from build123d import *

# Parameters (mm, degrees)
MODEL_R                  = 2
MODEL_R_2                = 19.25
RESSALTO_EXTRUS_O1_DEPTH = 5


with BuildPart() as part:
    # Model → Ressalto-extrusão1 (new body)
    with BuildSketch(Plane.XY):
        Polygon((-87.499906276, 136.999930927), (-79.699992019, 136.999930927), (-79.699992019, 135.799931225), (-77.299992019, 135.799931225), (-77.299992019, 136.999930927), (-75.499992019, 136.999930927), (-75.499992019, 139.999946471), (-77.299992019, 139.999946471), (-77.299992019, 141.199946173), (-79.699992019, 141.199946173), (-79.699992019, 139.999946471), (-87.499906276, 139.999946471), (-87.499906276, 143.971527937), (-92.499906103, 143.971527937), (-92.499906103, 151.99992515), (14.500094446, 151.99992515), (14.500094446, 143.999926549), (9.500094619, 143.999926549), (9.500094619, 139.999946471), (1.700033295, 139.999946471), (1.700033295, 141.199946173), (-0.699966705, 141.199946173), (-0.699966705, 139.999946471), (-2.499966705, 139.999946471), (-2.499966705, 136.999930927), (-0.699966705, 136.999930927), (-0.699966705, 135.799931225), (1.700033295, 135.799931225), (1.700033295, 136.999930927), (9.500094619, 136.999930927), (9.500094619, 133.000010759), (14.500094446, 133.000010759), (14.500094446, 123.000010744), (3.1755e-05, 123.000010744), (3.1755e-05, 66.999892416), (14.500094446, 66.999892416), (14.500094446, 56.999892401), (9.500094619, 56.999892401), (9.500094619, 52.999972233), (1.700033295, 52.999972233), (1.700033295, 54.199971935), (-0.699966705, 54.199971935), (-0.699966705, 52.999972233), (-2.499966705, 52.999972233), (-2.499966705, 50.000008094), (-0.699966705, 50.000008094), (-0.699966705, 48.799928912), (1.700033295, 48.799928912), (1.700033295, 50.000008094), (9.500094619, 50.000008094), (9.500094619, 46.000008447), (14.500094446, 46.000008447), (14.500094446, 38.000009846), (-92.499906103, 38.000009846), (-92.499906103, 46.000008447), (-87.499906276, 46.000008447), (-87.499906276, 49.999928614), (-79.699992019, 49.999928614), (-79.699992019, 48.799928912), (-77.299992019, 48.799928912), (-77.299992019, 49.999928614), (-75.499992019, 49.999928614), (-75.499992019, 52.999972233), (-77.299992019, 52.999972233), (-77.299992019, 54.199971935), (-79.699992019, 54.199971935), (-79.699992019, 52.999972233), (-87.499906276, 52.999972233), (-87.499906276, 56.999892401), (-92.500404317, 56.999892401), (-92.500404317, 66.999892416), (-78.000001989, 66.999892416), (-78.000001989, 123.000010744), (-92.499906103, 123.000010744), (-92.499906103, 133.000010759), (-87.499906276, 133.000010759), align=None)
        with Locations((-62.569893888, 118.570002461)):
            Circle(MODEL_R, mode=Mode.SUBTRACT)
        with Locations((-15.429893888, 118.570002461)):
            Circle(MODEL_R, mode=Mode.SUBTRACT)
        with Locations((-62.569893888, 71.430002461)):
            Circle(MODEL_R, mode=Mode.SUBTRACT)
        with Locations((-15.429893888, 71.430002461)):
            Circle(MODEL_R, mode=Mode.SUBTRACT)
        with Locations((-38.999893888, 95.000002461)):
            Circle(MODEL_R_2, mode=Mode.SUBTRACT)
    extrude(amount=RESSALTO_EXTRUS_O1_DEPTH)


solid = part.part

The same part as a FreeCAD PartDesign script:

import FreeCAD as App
import Part
import Sketcher
from FreeCAD import Vector
Q = App.Units.Quantity

doc = App.newDocument("Part")
body = doc.addObject("PartDesign::Body", "Body")

sketch1 = body.newObject("Sketcher::SketchObject", "Sketch")
sketch1.AttachmentSupport = (doc.getObject("XY_Plane"), [""])
sketch1.MapMode = "FlatFace"
sketch1.addGeometry([
    Part.LineSegment(Vector(-79.7, 137, 0), Vector(-87.5, 137, 0)),
    Part.LineSegment(Vector(-87.5, 137, 0), Vector(-87.5, 133, 0)),
    Part.LineSegment(Vector(-87.5, 133, 0), Vector(-92.5, 133, 0)),
    Part.LineSegment(Vector(-92.5, 133, 0), Vector(-92.5, 123, 0)),
    Part.LineSegment(Vector(-92.5, 123, 0), Vector(-78, 123, 0)),
    Part.LineSegment(Vector(-78, 123, 0), Vector(-78, 67, 0)),
    Part.LineSegment(Vector(-78, 67, 0), Vector(-92.5, 67, 0)),
    Part.LineSegment(Vector(-92.5, 67, 0), Vector(-92.5, 57, 0)),
    Part.LineSegment(Vector(-92.5, 57, 0), Vector(-87.5, 57, 0)),
    Part.LineSegment(Vector(-87.5, 57, 0), Vector(-87.5, 53, 0)),
    Part.LineSegment(Vector(-87.5, 53, 0), Vector(-79.7, 53, 0)),
    Part.LineSegment(Vector(-79.7, 53, 0), Vector(-79.7, 54.2, 0)),
    Part.LineSegment(Vector(-79.7, 54.2, 0), Vector(-77.3, 54.2, 0)),
    Part.LineSegment(Vector(-77.3, 54.2, 0), Vector(-77.3, 53, 0)),
    Part.LineSegment(Vector(-77.3, 53, 0), Vector(-75.5, 53, 0)),
    Part.LineSegment(Vector(-75.5, 53, 0), Vector(-75.5, 50, 0)),
    Part.LineSegment(Vector(-75.5, 50, 0), Vector(-77.3, 50, 0)),
    Part.LineSegment(Vector(-77.3, 50, 0), Vector(-77.3, 48.8, 0)),
    Part.LineSegment(Vector(-77.3, 48.8, 0), Vector(-79.7, 48.8, 0)),
    Part.LineSegment(Vector(-79.7, 48.8, 0), Vector(-79.7, 50, 0)),
    Part.LineSegment(Vector(-79.7, 50, 0), Vector(-87.5, 50, 0)),
    Part.LineSegment(Vector(-87.5, 50, 0), Vector(-87.5, 46, 0)),
    Part.LineSegment(Vector(-87.5, 46, 0), Vector(-92.5, 46, 0)),
    Part.LineSegment(Vector(-92.5, 46, 0), Vector(-92.5, 38, 0)),
    Part.LineSegment(Vector(-92.5, 38, 0), Vector(14.5, 38, 0)),
    Part.LineSegment(Vector(14.5, 38, 0), Vector(14.5, 46, 0)),
    Part.LineSegment(Vector(14.5, 46, 0), Vector(9.5, 46, 0)),
    Part.LineSegment(Vector(9.5, 46, 0), Vector(9.5, 50, 0)),
    Part.LineSegment(Vector(9.5, 50, 0), Vector(1.7, 50, 0)),
    Part.LineSegment(Vector(1.7, 50, 0), Vector(1.7, 48.8, 0)),
    Part.LineSegment(Vector(1.7, 48.8, 0), Vector(-0.7, 48.8, 0)),
    Part.LineSegment(Vector(-0.7, 48.8, 0), Vector(-0.7, 50, 0)),
    Part.LineSegment(Vector(-0.7, 50, 0), Vector(-2.5, 50, 0)),
    Part.LineSegment(Vector(-2.5, 50, 0), Vector(-2.5, 53, 0)),
    Part.LineSegment(Vector(-2.5, 53, 0), Vector(-0.7, 53, 0)),
    Part.LineSegment(Vector(-0.7, 53, 0), Vector(-0.7, 54.2, 0)),
    Part.LineSegment(Vector(-0.7, 54.2, 0), Vector(1.7, 54.2, 0)),
    Part.LineSegment(Vector(1.7, 54.2, 0), Vector(1.7, 53, 0)),
    Part.LineSegment(Vector(1.7, 53, 0), Vector(9.5, 53, 0)),
    Part.LineSegment(Vector(9.5, 53, 0), Vector(9.5, 57, 0)),
    Part.LineSegment(Vector(9.5, 57, 0), Vector(14.5, 57, 0)),
    Part.LineSegment(Vector(14.5, 57, 0), Vector(14.5, 67, 0)),
    Part.LineSegment(Vector(14.5, 67, 0), Vector(0, 67, 0)),
    Part.LineSegment(Vector(0, 67, 0), Vector(0, 123, 0)),
    Part.LineSegment(Vector(0, 123, 0), Vector(14.5, 123, 0)),
    Part.LineSegment(Vector(14.5, 123, 0), Vector(14.5, 133, 0)),
    Part.LineSegment(Vector(14.5, 133, 0), Vector(9.5, 133, 0)),
    Part.LineSegment(Vector(9.5, 133, 0), Vector(9.5, 137, 0)),
    Part.LineSegment(Vector(9.5, 137, 0), Vector(1.7, 137, 0)),
    Part.LineSegment(Vector(1.7, 137, 0), Vector(1.7, 135.8, 0)),
    Part.LineSegment(Vector(1.7, 135.8, 0), Vector(-0.7, 135.8, 0)),
    Part.LineSegment(Vector(-0.7, 135.8, 0), Vector(-0.7, 137, 0)),
    Part.LineSegment(Vector(-0.7, 137, 0), Vector(-2.5, 137, 0)),
    Part.LineSegment(Vector(-2.5, 137, 0), Vector(-2.5, 140, 0)),
    Part.LineSegment(Vector(-2.5, 140, 0), Vector(-0.7, 140, 0)),
    Part.LineSegment(Vector(-0.7, 140, 0), Vector(-0.7, 141.2, 0)),
    Part.LineSegment(Vector(-0.7, 141.2, 0), Vector(1.7, 141.2, 0)),
    Part.LineSegment(Vector(1.7, 141.2, 0), Vector(1.7, 140, 0)),
    Part.LineSegment(Vector(1.7, 140, 0), Vector(9.5, 140, 0)),
    Part.LineSegment(Vector(9.5, 140, 0), Vector(9.5, 144, 0)),
    Part.LineSegment(Vector(9.5, 144, 0), Vector(14.5, 144, 0)),
    Part.LineSegment(Vector(14.5, 144, 0), Vector(14.5, 152, 0)),
    Part.LineSegment(Vector(14.5, 152, 0), Vector(-92.5, 152, 0)),
    Part.LineSegment(Vector(-92.5, 152, 0), Vector(-92.5, 144, 0)),
    Part.LineSegment(Vector(-92.5, 144, 0), Vector(-87.5, 144, 0)),
    Part.LineSegment(Vector(-87.5, 144, 0), Vector(-87.5, 140, 0)),
    Part.LineSegment(Vector(-87.5, 140, 0), Vector(-79.7, 140, 0)),
    Part.LineSegment(Vector(-79.7, 140, 0), Vector(-79.7, 141.2, 0)),
    Part.LineSegment(Vector(-79.7, 141.2, 0), Vector(-77.3, 141.2, 0)),
    Part.LineSegment(Vector(-77.3, 141.2, 0), Vector(-77.3, 140, 0)),
    Part.LineSegment(Vector(-77.3, 140, 0), Vector(-75.5, 140, 0)),
    Part.LineSegment(Vector(-75.5, 140, 0), Vector(-75.5, 137, 0)),
    Part.LineSegment(Vector(-75.5, 137, 0), Vector(-77.3, 137, 0)),
    Part.LineSegment(Vector(-77.3, 137, 0), Vector(-77.3, 135.8, 0)),
    Part.LineSegment(Vector(-77.3, 135.8, 0), Vector(-79.7, 135.8, 0)),
    Part.LineSegment(Vector(-79.7, 135.8, 0), Vector(-79.7, 137, 0)),
    Part.Circle(Vector(-15.4, 71.4, 0), Vector(0, 0, 1), 2),
    Part.Circle(Vector(-62.6, 71.4, 0), Vector(0, 0, 1), 2),
    Part.Circle(Vector(-39, 95, 0), Vector(0, 0, 1), 19.2),
    Part.Circle(Vector(-15.4, 118.6, 0), Vector(0, 0, 1), 2),
    Part.Circle(Vector(-62.6, 118.6, 0), Vector(0, 0, 1), 2),
], False)
sketch1.addConstraint([
    Sketcher.Constraint("Coincident", 0, 2, 1, 1),
    Sketcher.Constraint("Coincident", 1, 2, 2, 1),
    Sketcher.Constraint("Coincident", 2, 2, 3, 1),
    Sketcher.Constraint("Coincident", 3, 2, 4, 1),
    Sketcher.Constraint("Coincident", 4, 2, 5, 1),
    Sketcher.Constraint("Coincident", 5, 2, 6, 1),
    Sketcher.Constraint("Coincident", 6, 2, 7, 1),
    Sketcher.Constraint("Coincident", 7, 2, 8, 1),
    Sketcher.Constraint("Coincident", 8, 2, 9, 1),
    Sketcher.Constraint("Coincident", 9, 2, 10, 1),
    Sketcher.Constraint("Coincident", 10, 2, 11, 1),
    Sketcher.Constraint("Coincident", 11, 2, 12, 1),
    Sketcher.Constraint("Coincident", 12, 2, 13, 1),
    Sketcher.Constraint("Coincident", 13, 2, 14, 1),
    Sketcher.Constraint("Coincident", 14, 2, 15, 1),
    Sketcher.Constraint("Coincident", 15, 2, 16, 1),
    Sketcher.Constraint("Coincident", 16, 2, 17, 1),
    Sketcher.Constraint("Coincident", 17, 2, 18, 1),
    Sketcher.Constraint("Coincident", 18, 2, 19, 1),
    Sketcher.Constraint("Coincident", 19, 2, 20, 1),
    Sketcher.Constraint("Coincident", 20, 2, 21, 1),
    Sketcher.Constraint("Coincident", 21, 2, 22, 1),
    Sketcher.Constraint("Coincident", 22, 2, 23, 1),
    Sketcher.Constraint("Coincident", 23, 2, 24, 1),
    Sketcher.Constraint("Coincident", 24, 2, 25, 1),
    Sketcher.Constraint("Coincident", 25, 2, 26, 1),
    Sketcher.Constraint("Coincident", 26, 2, 27, 1),
    Sketcher.Constraint("Coincident", 27, 2, 28, 1),
    Sketcher.Constraint("Coincident", 28, 2, 29, 1),
    Sketcher.Constraint("Coincident", 29, 2, 30, 1),
    Sketcher.Constraint("Coincident", 30, 2, 31, 1),
    Sketcher.Constraint("Coincident", 31, 2, 32, 1),
    Sketcher.Constraint("Coincident", 32, 2, 33, 1),
    Sketcher.Constraint("Coincident", 33, 2, 34, 1),
    Sketcher.Constraint("Coincident", 34, 2, 35, 1),
    Sketcher.Constraint("Coincident", 35, 2, 36, 1),
    Sketcher.Constraint("Coincident", 36, 2, 37, 1),
    Sketcher.Constraint("Coincident", 37, 2, 38, 1),
    Sketcher.Constraint("Coincident", 38, 2, 39, 1),
    Sketcher.Constraint("Coincident", 39, 2, 40, 1),
    Sketcher.Constraint("Coincident", 40, 2, 41, 1),
    Sketcher.Constraint("Coincident", 41, 2, 42, 1),
    Sketcher.Constraint("Coincident", 42, 2, 43, 1),
    Sketcher.Constraint("Coincident", 43, 2, 44, 1),
    Sketcher.Constraint("Coincident", 44, 2, 45, 1),
    Sketcher.Constraint("Coincident", 45, 2, 46, 1),
    Sketcher.Constraint("Coincident", 46, 2, 47, 1),
    Sketcher.Constraint("Coincident", 47, 2, 48, 1),
    Sketcher.Constraint("Coincident", 48, 2, 49, 1),
    Sketcher.Constraint("Coincident", 49, 2, 50, 1),
    Sketcher.Constraint("Coincident", 50, 2, 51, 1),
    Sketcher.Constraint("Coincident", 51, 2, 52, 1),
    Sketcher.Constraint("Coincident", 52, 2, 53, 1),
    Sketcher.Constraint("Coincident", 53, 2, 54, 1),
    Sketcher.Constraint("Coincident", 54, 2, 55, 1),
    Sketcher.Constraint("Coincident", 55, 2, 56, 1),
    Sketcher.Constraint("Coincident", 56, 2, 57, 1),
    Sketcher.Constraint("Coincident", 57, 2, 58, 1),
    Sketcher.Constraint("Coincident", 58, 2, 59, 1),
    Sketcher.Constraint("Coincident", 59, 2, 60, 1),
    Sketcher.Constraint("Coincident", 60, 2, 61, 1),
    Sketcher.Constraint("Coincident", 61, 2, 62, 1),
    Sketcher.Constraint("Coincident", 62, 2, 63, 1),
    Sketcher.Constraint("Coincident", 63, 2, 64, 1),
    Sketcher.Constraint("Coincident", 64, 2, 65, 1),
    Sketcher.Constraint("Coincident", 65, 2, 66, 1),
    Sketcher.Constraint("Coincident", 66, 2, 67, 1),
    Sketcher.Constraint("Coincident", 67, 2, 68, 1),
    Sketcher.Constraint("Coincident", 68, 2, 69, 1),
    Sketcher.Constraint("Coincident", 69, 2, 70, 1),
    Sketcher.Constraint("Coincident", 70, 2, 71, 1),
    Sketcher.Constraint("Coincident", 71, 2, 72, 1),
    Sketcher.Constraint("Coincident", 72, 2, 73, 1),
    Sketcher.Constraint("Coincident", 73, 2, 74, 1),
    Sketcher.Constraint("Coincident", 74, 2, 75, 1),
    Sketcher.Constraint("Coincident", 75, 2, 0, 1),
    Sketcher.Constraint("Horizontal", 0),
    Sketcher.Constraint("Vertical", 1),
    Sketcher.Constraint("Horizontal", 2),
    Sketcher.Constraint("Vertical", 3),
    Sketcher.Constraint("Horizontal", 4),
    Sketcher.Constraint("Vertical", 5),
    Sketcher.Constraint("Horizontal", 6),
    Sketcher.Constraint("Vertical", 7),
    Sketcher.Constraint("Horizontal", 8),
    Sketcher.Constraint("Vertical", 9),
    Sketcher.Constraint("Horizontal", 10),
    Sketcher.Constraint("Vertical", 11),
    Sketcher.Constraint("Horizontal", 12),
    Sketcher.Constraint("Vertical", 13),
    Sketcher.Constraint("Horizontal", 14),
    Sketcher.Constraint("Vertical", 15),
    Sketcher.Constraint("Horizontal", 16),
    Sketcher.Constraint("Vertical", 17),
    Sketcher.Constraint("Horizontal", 18),
    Sketcher.Constraint("Vertical", 19),
    Sketcher.Constraint("Horizontal", 20),
    Sketcher.Constraint("Vertical", 21),
    Sketcher.Constraint("Horizontal", 22),
    Sketcher.Constraint("Vertical", 23),
    Sketcher.Constraint("Horizontal", 24),
    Sketcher.Constraint("Vertical", 25),
    Sketcher.Constraint("Horizontal", 26),
    Sketcher.Constraint("Vertical", 27),
    Sketcher.Constraint("Horizontal", 28),
    Sketcher.Constraint("Vertical", 29),
    Sketcher.Constraint("Horizontal", 30),
    Sketcher.Constraint("Vertical", 31),
    Sketcher.Constraint("Horizontal", 32),
    Sketcher.Constraint("Vertical", 33),
    Sketcher.Constraint("Horizontal", 34),
    Sketcher.Constraint("Vertical", 35),
    Sketcher.Constraint("Horizontal", 36),
    Sketcher.Constraint("Vertical", 37),
    Sketcher.Constraint("Horizontal", 38),
    Sketcher.Constraint("Vertical", 39),
    Sketcher.Constraint("Horizontal", 40),
    Sketcher.Constraint("Vertical", 41),
    Sketcher.Constraint("Horizontal", 42),
    Sketcher.Constraint("Vertical", 43),
    Sketcher.Constraint("Horizontal", 44),
    Sketcher.Constraint("Vertical", 45),
    Sketcher.Constraint("Horizontal", 46),
    Sketcher.Constraint("Vertical", 47),
    Sketcher.Constraint("Horizontal", 48),
    Sketcher.Constraint("Vertical", 49),
    Sketcher.Constraint("Horizontal", 50),
    Sketcher.Constraint("Vertical", 51),
    Sketcher.Constraint("Horizontal", 52),
    Sketcher.Constraint("Vertical", 53),
    Sketcher.Constraint("Horizontal", 54),
    Sketcher.Constraint("Vertical", 55),
    Sketcher.Constraint("Horizontal", 56),
    Sketcher.Constraint("Vertical", 57),
    Sketcher.Constraint("Horizontal", 58),
    Sketcher.Constraint("Vertical", 59),
    Sketcher.Constraint("Horizontal", 60),
    Sketcher.Constraint("Vertical", 61),
    Sketcher.Constraint("Horizontal", 62),
    Sketcher.Constraint("Vertical", 63),
    Sketcher.Constraint("Horizontal", 64),
    Sketcher.Constraint("Vertical", 65),
    Sketcher.Constraint("Horizontal", 66),
    Sketcher.Constraint("Vertical", 67),
    Sketcher.Constraint("Horizontal", 68),
    Sketcher.Constraint("Vertical", 69),
    Sketcher.Constraint("Horizontal", 70),
    Sketcher.Constraint("Vertical", 71),
    Sketcher.Constraint("Horizontal", 72),
    Sketcher.Constraint("Vertical", 73),
    Sketcher.Constraint("Horizontal", 74),
    Sketcher.Constraint("Vertical", 75),
    Sketcher.Constraint("Equal", 76, 77),
    Sketcher.Constraint("Equal", 77, 79),
    Sketcher.Constraint("Equal", 79, 80),
    Sketcher.Constraint("Horizontal", 76, 3, 77, 3),
    Sketcher.Constraint("Horizontal", 79, 3, 80, 3),
    Sketcher.Constraint("Horizontal", 10, 2, 13, 2),
    Sketcher.Constraint("Horizontal", 16, 2, 19, 2),
    Sketcher.Constraint("Horizontal", 22, 2, 25, 2),
    Sketcher.Constraint("Horizontal", 18, 2, 29, 2),
    Sketcher.Constraint("Horizontal", 28, 2, 31, 2),
    Sketcher.Constraint("Horizontal", 14, 2, 33, 2),
    Sketcher.Constraint("Horizontal", 12, 2, 35, 2),
    Sketcher.Constraint("Horizontal", 34, 2, 37, 2),
    Sketcher.Constraint("Horizontal", 8, 2, 39, 2),
    Sketcher.Constraint("Horizontal", 6, 2, 41, 2),
    Sketcher.Constraint("Horizontal", 4, 2, 43, 2),
    Sketcher.Constraint("Horizontal", 2, 2, 45, 2),
    Sketcher.Constraint("Horizontal", 0, 2, 47, 2),
    Sketcher.Constraint("Horizontal", 48, 2, 51, 2),
    Sketcher.Constraint("Horizontal", 54, 2, 57, 2),
    Sketcher.Constraint("Horizontal", 58, 2, 65, 2),
    Sketcher.Constraint("Horizontal", 56, 2, 67, 2),
    Sketcher.Constraint("Horizontal", 66, 2, 69, 2),
    Sketcher.Constraint("Horizontal", 52, 2, 71, 2),
    Sketcher.Constraint("Horizontal", 50, 2, 73, 2),
    Sketcher.Constraint("Vertical", 76, 3, 79, 3),
    Sketcher.Constraint("Vertical", 77, 3, 80, 3),
    Sketcher.Constraint("Vertical", 1, 2, 8, 2),
    Sketcher.Constraint("Vertical", 13, 2, 16, 2),
    Sketcher.Constraint("Vertical", 11, 2, 18, 2),
    Sketcher.Constraint("Vertical", 9, 2, 20, 2),
    Sketcher.Constraint("Vertical", 3, 2, 22, 2),
    Sketcher.Constraint("Vertical", 31, 2, 34, 2),
    Sketcher.Constraint("Vertical", 29, 2, 36, 2),
    Sketcher.Constraint("Vertical", 27, 2, 38, 2),
    Sketcher.Constraint("Vertical", 25, 2, 40, 2),
    Sketcher.Constraint("Vertical", 41, 2, 44, 2),
    Sketcher.Constraint("Vertical", 39, 2, 46, 2),
    Sketcher.Constraint("Vertical", 37, 2, 48, 2),
    Sketcher.Constraint("Vertical", 35, 2, 50, 2),
    Sketcher.Constraint("Vertical", 33, 2, 52, 2),
    Sketcher.Constraint("Vertical", 51, 2, 54, 2),
    Sketcher.Constraint("Vertical", 49, 2, 56, 2),
    Sketcher.Constraint("Vertical", 47, 2, 58, 2),
    Sketcher.Constraint("Vertical", 45, 2, 60, 2),
    Sketcher.Constraint("Vertical", 23, 2, 62, 2),
    Sketcher.Constraint("Vertical", 21, 2, 64, 2),
    Sketcher.Constraint("Vertical", 19, 2, 66, 2),
    Sketcher.Constraint("Vertical", 17, 2, 68, 2),
    Sketcher.Constraint("Vertical", 15, 2, 70, 2),
    Sketcher.Constraint("Vertical", 69, 2, 72, 2),
    Sketcher.Constraint("Vertical", 67, 2, 74, 2),
    Sketcher.Constraint("Equal", 22, 26),
    Sketcher.Constraint("Equal", 18, 30),
    Sketcher.Constraint("Equal", 16, 32),
    Sketcher.Constraint("Equal", 3, 7),
    Sketcher.Constraint("Equal", 1, 9),
    Sketcher.Constraint("Equal", 13, 17),
    Sketcher.Constraint("Equal", 9, 21),
    Sketcher.Constraint("Equal", 37, 49),
    Sketcher.Constraint("Equal", 51, 55),
    Sketcher.Constraint("Equal", 25, 61),
    Sketcher.Constraint("Diameter", 76, Q("4 mm")),
    Sketcher.Constraint("Diameter", 78, Q("38.5 mm")),
    Sketcher.Constraint("DistanceX", 2, 2, 2, 1, Q("5 mm")),
    Sketcher.Constraint("DistanceX", 24, 1, 24, 2, Q("107.000001 mm")),
    Sketcher.Constraint("DistanceY", 3, 2, 3, 1, Q("10 mm")),
    Sketcher.Constraint("DistanceY", 23, 2, 23, 1, Q("7.999999 mm")),
    Sketcher.Constraint("DistanceY", 27, 1, 27, 2, Q("4 mm")),
    Sketcher.Constraint("DistanceX", 12, 1, 12, 2, Q("2.4 mm")),
    Sketcher.Constraint("DistanceX", 14, 1, 14, 2, Q("1.8 mm")),
    Sketcher.Constraint("DistanceY", 11, 1, 11, 2, Q("1.2 mm")),
    Sketcher.Constraint("DistanceX", 4, 2, -1, 1, Q("78.000002 mm")),
    Sketcher.Constraint("DistanceX", 8, 1, 8, 2, Q("5.000498 mm")),
    Sketcher.Constraint("DistanceX", 28, 2, 28, 1, Q("7.800061 mm")),
    Sketcher.Constraint("DistanceY", 1, 2, 1, 1, Q("3.99992 mm")),
    Sketcher.Constraint("DistanceY", 5, 2, 5, 1, Q("56.000118 mm")),
    Sketcher.Constraint("DistanceY", 59, 1, 59, 2, Q("3.99998 mm")),
    Sketcher.Constraint("DistanceY", 65, 2, 65, 1, Q("3.971581 mm")),
    Sketcher.Constraint("DistanceX", 0, 2, 0, 1, Q("7.799914 mm")),
    Sketcher.Constraint("DistanceX", 4, 1, 4, 2, Q("14.499904 mm")),
    Sketcher.Constraint("DistanceX", 42, 2, 42, 1, Q("14.500063 mm")),
    Sketcher.Constraint("DistanceY", 15, 2, 15, 1, Q("3.000044 mm")),
    Sketcher.Constraint("DistanceY", 53, 1, 53, 2, Q("3.000016 mm")),
    Sketcher.Constraint("DistanceY", -1, 1, 0, 2, Q("136.999931 mm")),
    Sketcher.Constraint("DistanceX", 76, 3, -1, 1, Q("15.429894 mm")),
    Sketcher.Constraint("DistanceY", -1, 1, 76, 3, Q("71.430002 mm")),
    Sketcher.Constraint("DistanceX", 77, 3, -1, 1, Q("62.569894 mm")),
    Sketcher.Constraint("DistanceX", 78, 3, -1, 1, Q("38.999894 mm")),
    Sketcher.Constraint("DistanceY", -1, 1, 78, 3, Q("95.000002 mm")),
    Sketcher.Constraint("DistanceY", -1, 1, 79, 3, Q("118.570002 mm")),
])
pad1 = body.newObject("PartDesign::Pad", "Pad")
pad1.Profile = sketch1
pad1.Length = 5

doc.recompute()
